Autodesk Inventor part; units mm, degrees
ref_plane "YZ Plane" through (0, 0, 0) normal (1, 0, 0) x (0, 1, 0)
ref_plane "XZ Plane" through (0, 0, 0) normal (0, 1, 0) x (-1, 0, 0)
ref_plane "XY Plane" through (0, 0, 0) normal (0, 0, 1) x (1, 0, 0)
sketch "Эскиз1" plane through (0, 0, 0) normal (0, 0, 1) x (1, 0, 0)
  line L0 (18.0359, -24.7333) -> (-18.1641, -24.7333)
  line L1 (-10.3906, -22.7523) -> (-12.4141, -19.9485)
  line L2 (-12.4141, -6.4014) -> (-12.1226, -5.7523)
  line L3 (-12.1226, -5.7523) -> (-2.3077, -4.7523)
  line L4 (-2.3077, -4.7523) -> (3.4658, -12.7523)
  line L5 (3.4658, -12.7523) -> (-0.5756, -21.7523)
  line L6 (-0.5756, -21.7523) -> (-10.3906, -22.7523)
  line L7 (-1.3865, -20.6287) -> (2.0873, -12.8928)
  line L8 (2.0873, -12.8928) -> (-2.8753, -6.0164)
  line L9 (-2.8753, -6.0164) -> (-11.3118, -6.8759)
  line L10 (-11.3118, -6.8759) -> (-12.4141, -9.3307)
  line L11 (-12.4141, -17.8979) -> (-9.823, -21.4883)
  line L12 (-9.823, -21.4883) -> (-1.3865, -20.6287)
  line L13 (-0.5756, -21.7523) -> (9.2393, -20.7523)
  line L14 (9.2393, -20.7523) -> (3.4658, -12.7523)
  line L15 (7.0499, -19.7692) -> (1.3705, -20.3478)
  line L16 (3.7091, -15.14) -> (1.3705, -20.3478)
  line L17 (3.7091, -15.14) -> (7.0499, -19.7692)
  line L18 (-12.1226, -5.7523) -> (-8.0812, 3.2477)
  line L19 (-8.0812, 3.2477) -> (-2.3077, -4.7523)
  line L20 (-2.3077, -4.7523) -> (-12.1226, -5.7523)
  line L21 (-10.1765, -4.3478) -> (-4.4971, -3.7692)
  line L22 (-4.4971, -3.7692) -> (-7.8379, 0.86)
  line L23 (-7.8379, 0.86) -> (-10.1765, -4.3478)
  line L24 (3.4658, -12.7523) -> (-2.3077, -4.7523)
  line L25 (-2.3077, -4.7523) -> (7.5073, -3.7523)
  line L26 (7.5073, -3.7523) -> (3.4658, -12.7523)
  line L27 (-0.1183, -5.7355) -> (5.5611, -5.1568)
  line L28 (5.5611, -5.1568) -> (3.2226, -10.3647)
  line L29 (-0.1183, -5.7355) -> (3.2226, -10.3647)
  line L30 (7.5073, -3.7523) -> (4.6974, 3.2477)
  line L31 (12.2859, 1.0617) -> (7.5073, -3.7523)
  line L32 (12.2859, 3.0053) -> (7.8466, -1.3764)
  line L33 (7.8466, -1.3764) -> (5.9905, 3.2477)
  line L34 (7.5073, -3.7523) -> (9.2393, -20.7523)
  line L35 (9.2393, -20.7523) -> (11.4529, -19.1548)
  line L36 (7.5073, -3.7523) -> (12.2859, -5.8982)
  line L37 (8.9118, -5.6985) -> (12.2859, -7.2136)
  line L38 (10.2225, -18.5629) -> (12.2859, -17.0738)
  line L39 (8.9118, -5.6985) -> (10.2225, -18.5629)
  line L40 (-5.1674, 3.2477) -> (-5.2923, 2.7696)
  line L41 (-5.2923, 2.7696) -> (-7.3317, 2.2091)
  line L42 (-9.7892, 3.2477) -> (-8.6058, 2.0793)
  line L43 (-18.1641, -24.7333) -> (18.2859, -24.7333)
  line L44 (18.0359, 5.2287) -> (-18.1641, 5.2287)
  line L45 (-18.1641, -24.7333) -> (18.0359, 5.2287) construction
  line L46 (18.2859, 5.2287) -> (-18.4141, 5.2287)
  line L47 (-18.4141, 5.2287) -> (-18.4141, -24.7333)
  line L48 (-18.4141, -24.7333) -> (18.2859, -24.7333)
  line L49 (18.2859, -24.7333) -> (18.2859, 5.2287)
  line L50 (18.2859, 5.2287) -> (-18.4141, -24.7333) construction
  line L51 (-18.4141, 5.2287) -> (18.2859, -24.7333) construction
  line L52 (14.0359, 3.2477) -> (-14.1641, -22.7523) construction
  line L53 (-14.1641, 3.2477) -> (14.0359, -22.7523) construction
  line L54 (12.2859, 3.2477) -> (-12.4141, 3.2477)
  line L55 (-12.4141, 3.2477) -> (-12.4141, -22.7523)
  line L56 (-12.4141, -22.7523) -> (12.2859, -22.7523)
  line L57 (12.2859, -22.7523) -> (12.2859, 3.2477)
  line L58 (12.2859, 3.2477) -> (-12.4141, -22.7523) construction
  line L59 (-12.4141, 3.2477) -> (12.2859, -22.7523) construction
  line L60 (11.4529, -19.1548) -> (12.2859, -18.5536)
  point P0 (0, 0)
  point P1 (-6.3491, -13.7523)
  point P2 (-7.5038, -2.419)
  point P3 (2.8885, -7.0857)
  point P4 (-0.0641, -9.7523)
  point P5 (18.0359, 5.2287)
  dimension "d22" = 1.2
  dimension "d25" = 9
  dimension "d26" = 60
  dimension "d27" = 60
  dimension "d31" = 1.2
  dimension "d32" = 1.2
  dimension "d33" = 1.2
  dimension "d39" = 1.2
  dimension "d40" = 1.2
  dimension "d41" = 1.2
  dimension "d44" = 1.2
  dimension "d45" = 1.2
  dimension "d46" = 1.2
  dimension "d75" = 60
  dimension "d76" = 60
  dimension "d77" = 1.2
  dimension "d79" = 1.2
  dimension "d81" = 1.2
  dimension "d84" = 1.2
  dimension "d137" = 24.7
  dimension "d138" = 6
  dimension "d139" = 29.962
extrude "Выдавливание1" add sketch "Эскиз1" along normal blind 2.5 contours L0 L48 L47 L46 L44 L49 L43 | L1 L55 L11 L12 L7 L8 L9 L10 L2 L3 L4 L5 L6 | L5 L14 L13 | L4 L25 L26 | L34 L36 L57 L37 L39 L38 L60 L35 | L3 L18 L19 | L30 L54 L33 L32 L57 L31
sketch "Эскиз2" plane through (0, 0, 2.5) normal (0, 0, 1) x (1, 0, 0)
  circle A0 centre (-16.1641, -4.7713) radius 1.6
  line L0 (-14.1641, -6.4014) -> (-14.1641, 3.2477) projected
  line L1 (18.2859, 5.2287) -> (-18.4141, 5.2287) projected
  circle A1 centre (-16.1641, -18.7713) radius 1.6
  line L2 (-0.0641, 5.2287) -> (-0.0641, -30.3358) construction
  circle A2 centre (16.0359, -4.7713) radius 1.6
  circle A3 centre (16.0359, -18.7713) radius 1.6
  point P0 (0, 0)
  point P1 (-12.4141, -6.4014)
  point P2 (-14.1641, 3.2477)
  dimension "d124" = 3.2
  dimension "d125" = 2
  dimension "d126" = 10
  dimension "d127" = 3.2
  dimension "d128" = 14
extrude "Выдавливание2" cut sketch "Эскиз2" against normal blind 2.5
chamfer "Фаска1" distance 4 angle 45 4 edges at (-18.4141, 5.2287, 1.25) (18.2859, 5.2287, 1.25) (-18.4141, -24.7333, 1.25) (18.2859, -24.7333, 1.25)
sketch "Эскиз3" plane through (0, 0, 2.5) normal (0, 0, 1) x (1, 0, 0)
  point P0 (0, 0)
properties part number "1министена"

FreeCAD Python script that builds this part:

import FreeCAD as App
import Part
import Sketcher
from FreeCAD import Vector
Q = App.Units.Quantity


def edges_at(feature, points):
    """Names of the edges that pass closest to the given points."""
    edges = feature.Shape.Edges
    near = lambda p: min(range(len(edges)), key=lambda i: edges[i].distToShape(Part.Vertex(*p))[0])
    return sorted({f"Edge{near(p) + 1}" for p in points})

doc = App.newDocument("Part")
body = doc.addObject("PartDesign::Body", "Body")

# Sketch on XY plane
sketch1 = doc.addObject("Sketcher::SketchObject", "Sketch")
body.addObject(sketch1)
sketch1.AttachmentSupport = (doc.XY_Plane, [""])
sketch1.MapMode = "FlatFace"
sketch1.addGeometry(Part.LineSegment(Vector(18.2859, -24.7333, 0), Vector(18.2859, 5.2287, 0)), False)
sketch1.addGeometry(Part.LineSegment(Vector(18.2859, 5.2287, 0), Vector(-18.4141, 5.2287, 0)), False)
sketch1.addGeometry(Part.LineSegment(Vector(-18.4141, 5.2287, 0), Vector(-18.4141, -24.7333, 0)), False)
sketch1.addGeometry(Part.LineSegment(Vector(-18.4141, -24.7333, 0), Vector(18.2859, -24.7333, 0)), False)
sketch1.addGeometry(Part.LineSegment(Vector(-10.3906, -22.7523, 0), Vector(-12.4141, -22.7523, 0)), False)
sketch1.addGeometry(Part.LineSegment(Vector(-12.4141, -22.7523, 0), Vector(-12.4141, -19.9485, 0)), False)
sketch1.addGeometry(Part.LineSegment(Vector(-12.4141, -19.9485, 0), Vector(-10.3906, -22.7523, 0)), False)
sketch1.addGeometry(Part.LineSegment(Vector(-10.3906, -22.7523, 0), Vector(-0.5756, -21.7523, 0)), False)
sketch1.addGeometry(Part.LineSegment(Vector(-0.5756, -21.7523, 0), Vector(9.2393, -20.7523, 0)), False)
sketch1.addGeometry(Part.LineSegment(Vector(9.2393, -20.7523, 0), Vector(11.4529, -19.1548, 0)), False)
sketch1.addGeometry(Part.LineSegment(Vector(11.4529, -19.1548, 0), Vector(12.2859, -18.5536, 0)), False)
sketch1.addGeometry(Part.LineSegment(Vector(12.2859, -18.5536, 0), Vector(12.2859, -22.7523, 0)), False)
sketch1.addGeometry(Part.LineSegment(Vector(12.2859, -22.7523, 0), Vector(-10.3906, -22.7523, 0)), False)
sketch1.addGeometry(Part.LineSegment(Vector(9.2393, -20.7523, 0), Vector(3.4658, -12.7523, 0)), False)
sketch1.addGeometry(Part.LineSegment(Vector(3.4658, -12.7523, 0), Vector(7.5073, -3.7523, 0)), False)
sketch1.addGeometry(Part.LineSegment(Vector(7.5073, -3.7523, 0), Vector(9.2393, -20.7523, 0)), False)
sketch1.addGeometry(Part.LineSegment(Vector(7.5073, -3.7523, 0), Vector(-2.3077, -4.7523, 0)), False)
sketch1.addGeometry(Part.LineSegment(Vector(-2.3077, -4.7523, 0), Vector(-8.0812, 3.2477, 0)), False)
sketch1.addGeometry(Part.LineSegment(Vector(-8.0812, 3.2477, 0), Vector(4.6974, 3.2477, 0)), False)
sketch1.addGeometry(Part.LineSegment(Vector(4.6974, 3.2477, 0), Vector(7.5073, -3.7523, 0)), False)
sketch1.addGeometry(Part.LineSegment(Vector(7.5073, -3.7523, 0), Vector(12.2859, 1.0617, 0)), False)
sketch1.addGeometry(Part.LineSegment(Vector(12.2859, 1.0617, 0), Vector(12.2859, -5.8982, 0)), False)
sketch1.addGeometry(Part.LineSegment(Vector(12.2859, -5.8982, 0), Vector(7.5073, -3.7523, 0)), False)
sketch1.addGeometry(Part.LineSegment(Vector(-8.0812, 3.2477, 0), Vector(-12.1226, -5.7523, 0)), False)
sketch1.addGeometry(Part.LineSegment(Vector(-12.1226, -5.7523, 0), Vector(-12.4141, -6.4014, 0)), False)
sketch1.addGeometry(Part.LineSegment(Vector(-12.4141, -6.4014, 0), Vector(-12.4141, 3.2477, 0)), False)
sketch1.addGeometry(Part.LineSegment(Vector(-12.4141, 3.2477, 0), Vector(-8.0812, 3.2477, 0)), False)
sketch1.addGeometry(Part.LineSegment(Vector(12.2859, -7.2136, 0), Vector(12.2859, -17.0738, 0)), False)
sketch1.addGeometry(Part.LineSegment(Vector(12.2859, -17.0738, 0), Vector(10.2225, -18.5629, 0)), False)
sketch1.addGeometry(Part.LineSegment(Vector(10.2225, -18.5629, 0), Vector(8.9118, -5.6985, 0)), False)
sketch1.addGeometry(Part.LineSegment(Vector(8.9118, -5.6985, 0), Vector(12.2859, -7.2136, 0)), False)
sketch1.addGeometry(Part.LineSegment(Vector(12.2859, 3.2477, 0), Vector(12.2859, 3.0053, 0)), False)
sketch1.addGeometry(Part.LineSegment(Vector(12.2859, 3.0053, 0), Vector(7.8466, -1.3764, 0)), False)
sketch1.addGeometry(Part.LineSegment(Vector(7.8466, -1.3764, 0), Vector(5.9905, 3.2477, 0)), False)
sketch1.addGeometry(Part.LineSegment(Vector(5.9905, 3.2477, 0), Vector(12.2859, 3.2477, 0)), False)
sketch1.addGeometry(Part.LineSegment(Vector(-12.4141, -17.8979, 0), Vector(-12.4141, -9.3307, 0)), False)
sketch1.addGeometry(Part.LineSegment(Vector(-12.4141, -9.3307, 0), Vector(-11.3118, -6.8759, 0)), False)
sketch1.addGeometry(Part.LineSegment(Vector(-11.3118, -6.8759, 0), Vector(-2.8753, -6.0164, 0)), False)
sketch1.addGeometry(Part.LineSegment(Vector(-2.8753, -6.0164, 0), Vector(2.0873, -12.8928, 0)), False)
sketch1.addGeometry(Part.LineSegment(Vector(2.0873, -12.8928, 0), Vector(-1.3865, -20.6287, 0)), False)
sketch1.addGeometry(Part.LineSegment(Vector(-1.3865, -20.6287, 0), Vector(-9.823, -21.4883, 0)), False)
sketch1.addGeometry(Part.LineSegment(Vector(-9.823, -21.4883, 0), Vector(-12.4141, -17.8979, 0)), False)
sketch1.addGeometry(Part.LineSegment(Vector(7.0499, -19.7692, 0), Vector(1.3705, -20.3478, 0)), False)
sketch1.addGeometry(Part.LineSegment(Vector(1.3705, -20.3478, 0), Vector(3.7091, -15.14, 0)), False)
sketch1.addGeometry(Part.LineSegment(Vector(3.7091, -15.14, 0), Vector(7.0499, -19.7692, 0)), False)
sketch1.addGeometry(Part.LineSegment(Vector(-10.1765, -4.3478, 0), Vector(-7.8379, 0.86, 0)), False)
sketch1.addGeometry(Part.LineSegment(Vector(-7.8379, 0.86, 0), Vector(-4.4971, -3.7692, 0)), False)
sketch1.addGeometry(Part.LineSegment(Vector(-4.4971, -3.7692, 0), Vector(-10.1765, -4.3478, 0)), False)
sketch1.addGeometry(Part.LineSegment(Vector(-0.1183, -5.7355, 0), Vector(5.5611, -5.1568, 0)), False)
sketch1.addGeometry(Part.LineSegment(Vector(5.5611, -5.1568, 0), Vector(3.2226, -10.3647, 0)), False)
sketch1.addGeometry(Part.LineSegment(Vector(3.2226, -10.3647, 0), Vector(-0.1183, -5.7355, 0)), False)
sketch1.addConstraint(Sketcher.Constraint("Coincident", 0, 2, 1, 1))
sketch1.addConstraint(Sketcher.Constraint("Coincident", 1, 2, 2, 1))
sketch1.addConstraint(Sketcher.Constraint("Coincident", 2, 2, 3, 1))
sketch1.addConstraint(Sketcher.Constraint("Coincident", 3, 2, 0, 1))
sketch1.addConstraint(Sketcher.Constraint("Coincident", 4, 2, 5, 1))
sketch1.addConstraint(Sketcher.Constraint("Coincident", 5, 2, 6, 1))
sketch1.addConstraint(Sketcher.Constraint("Coincident", 6, 2, 4, 1))
sketch1.addConstraint(Sketcher.Constraint("Coincident", 7, 2, 8, 1))
sketch1.addConstraint(Sketcher.Constraint("Coincident", 8, 2, 9, 1))
sketch1.addConstraint(Sketcher.Constraint("Coincident", 9, 2, 10, 1))
sketch1.addConstraint(Sketcher.Constraint("Coincident", 10, 2, 11, 1))
sketch1.addConstraint(Sketcher.Constraint("Coincident", 11, 2, 12, 1))
sketch1.addConstraint(Sketcher.Constraint("Coincident", 12, 2, 7, 1))
sketch1.addConstraint(Sketcher.Constraint("Coincident", 13, 2, 14, 1))
sketch1.addConstraint(Sketcher.Constraint("Coincident", 14, 2, 15, 1))
sketch1.addConstraint(Sketcher.Constraint("Coincident", 15, 2, 13, 1))
sketch1.addConstraint(Sketcher.Constraint("Coincident", 16, 2, 17, 1))
sketch1.addConstraint(Sketcher.Constraint("Coincident", 17, 2, 18, 1))
sketch1.addConstraint(Sketcher.Constraint("Coincident", 18, 2, 19, 1))
sketch1.addConstraint(Sketcher.Constraint("Coincident", 19, 2, 16, 1))
sketch1.addConstraint(Sketcher.Constraint("Coincident", 20, 2, 21, 1))
sketch1.addConstraint(Sketcher.Constraint("Coincident", 21, 2, 22, 1))
sketch1.addConstraint(Sketcher.Constraint("Coincident", 22, 2, 20, 1))
sketch1.addConstraint(Sketcher.Constraint("Coincident", 23, 2, 24, 1))
sketch1.addConstraint(Sketcher.Constraint("Coincident", 24, 2, 25, 1))
sketch1.addConstraint(Sketcher.Constraint("Coincident", 25, 2, 26, 1))
sketch1.addConstraint(Sketcher.Constraint("Coincident", 26, 2, 23, 1))
sketch1.addConstraint(Sketcher.Constraint("Coincident", 27, 2, 28, 1))
sketch1.addConstraint(Sketcher.Constraint("Coincident", 28, 2, 29, 1))
sketch1.addConstraint(Sketcher.Constraint("Coincident", 29, 2, 30, 1))
sketch1.addConstraint(Sketcher.Constraint("Coincident", 30, 2, 27, 1))
sketch1.addConstraint(Sketcher.Constraint("Coincident", 31, 2, 32, 1))
sketch1.addConstraint(Sketcher.Constraint("Coincident", 32, 2, 33, 1))
sketch1.addConstraint(Sketcher.Constraint("Coincident", 33, 2, 34, 1))
sketch1.addConstraint(Sketcher.Constraint("Coincident", 34, 2, 31, 1))
sketch1.addConstraint(Sketcher.Constraint("Coincident", 35, 2, 36, 1))
sketch1.addConstraint(Sketcher.Constraint("Coincident", 36, 2, 37, 1))
sketch1.addConstraint(Sketcher.Constraint("Coincident", 37, 2, 38, 1))
sketch1.addConstraint(Sketcher.Constraint("Coincident", 38, 2, 39, 1))
sketch1.addConstraint(Sketcher.Constraint("Coincident", 39, 2, 40, 1))
sketch1.addConstraint(Sketcher.Constraint("Coincident", 40, 2, 41, 1))
sketch1.addConstraint(Sketcher.Constraint("Coincident", 41, 2, 35, 1))
sketch1.addConstraint(Sketcher.Constraint("Coincident", 42, 2, 43, 1))
sketch1.addConstraint(Sketcher.Constraint("Coincident", 43, 2, 44, 1))
sketch1.addConstraint(Sketcher.Constraint("Coincident", 44, 2, 42, 1))
sketch1.addConstraint(Sketcher.Constraint("Coincident", 45, 2, 46, 1))
sketch1.addConstraint(Sketcher.Constraint("Coincident", 46, 2, 47, 1))
sketch1.addConstraint(Sketcher.Constraint("Coincident", 47, 2, 45, 1))
sketch1.addConstraint(Sketcher.Constraint("Coincident", 48, 2, 49, 1))
sketch1.addConstraint(Sketcher.Constraint("Coincident", 49, 2, 50, 1))
sketch1.addConstraint(Sketcher.Constraint("Coincident", 50, 2, 48, 1))
sketch1.addConstraint(Sketcher.Constraint("Vertical", 0))
sketch1.addConstraint(Sketcher.Constraint("Horizontal", 1))
sketch1.addConstraint(Sketcher.Constraint("Vertical", 2))
sketch1.addConstraint(Sketcher.Constraint("Horizontal", 3))
sketch1.addConstraint(Sketcher.Constraint("Horizontal", 4))
sketch1.addConstraint(Sketcher.Constraint("Vertical", 5))
sketch1.addConstraint(Sketcher.Constraint("Vertical", 11))
sketch1.addConstraint(Sketcher.Constraint("Horizontal", 12))
sketch1.addConstraint(Sketcher.Constraint("Horizontal", 18))
sketch1.addConstraint(Sketcher.Constraint("Vertical", 21))
sketch1.addConstraint(Sketcher.Constraint("Vertical", 25))
sketch1.addConstraint(Sketcher.Constraint("Horizontal", 26))
sketch1.addConstraint(Sketcher.Constraint("Vertical", 27))
sketch1.addConstraint(Sketcher.Constraint("Vertical", 31))
sketch1.addConstraint(Sketcher.Constraint("Horizontal", 34))
sketch1.addConstraint(Sketcher.Constraint("Vertical", 35))
sketch1.addConstraint(Sketcher.Constraint("Coincident", 12, 2, 6, 2))
sketch1.addConstraint(Sketcher.Constraint("Coincident", 15, 2, 8, 2))
sketch1.addConstraint(Sketcher.Constraint("Coincident", 19, 2, 14, 2))
sketch1.addConstraint(Sketcher.Constraint("Coincident", 22, 2, 14, 2))
sketch1.addConstraint(Sketcher.Constraint("Coincident", 26, 2, 17, 2))
sketch1.addConstraint(Sketcher.Constraint("Parallel", 7, 8))
sketch1.addConstraint(Sketcher.Constraint("Perpendicular", 6, 9))
sketch1.addConstraint(Sketcher.Constraint("Parallel", 9, 10))
sketch1.addConstraint(Sketcher.Constraint("Perpendicular", 10, 13))
sketch1.addConstraint(Sketcher.Constraint("Perpendicular", 8, 15))
sketch1.addConstraint(Sketcher.Constraint("Perpendicular", 15, 16))
sketch1.addConstraint(Sketcher.Constraint("Parallel", 13, 17))
sketch1.addConstraint(Sketcher.Constraint("Perpendicular", 14, 22))
sketch1.addConstraint(Sketcher.Constraint("Perpendicular", 22, 23))
sketch1.addConstraint(Sketcher.Constraint("Parallel", 23, 24))
sketch1.addConstraint(Sketcher.Constraint("Perpendicular", 17, 28))
sketch1.addConstraint(Sketcher.Constraint("Perpendicular", 16, 29))
sketch1.addConstraint(Sketcher.Constraint("Perpendicular", 24, 30))
sketch1.addConstraint(Sketcher.Constraint("Parallel", 19, 33))
sketch1.addConstraint(Sketcher.Constraint("Perpendicular", 30, 36))
sketch1.addConstraint(Sketcher.Constraint("Perpendicular", 29, 37))
sketch1.addConstraint(Sketcher.Constraint("Perpendicular", 28, 38))
sketch1.addConstraint(Sketcher.Constraint("Parallel", 36, 39))
sketch1.addConstraint(Sketcher.Constraint("Parallel", 37, 40))
sketch1.addConstraint(Sketcher.Constraint("Parallel", 38, 41))
sketch1.addConstraint(Sketcher.Constraint("Parallel", 40, 42))
sketch1.addConstraint(Sketcher.Constraint("Parallel", 39, 43))
sketch1.addConstraint(Sketcher.Constraint("Parallel", 41, 44))
sketch1.addConstraint(Sketcher.Constraint("Parallel", 43, 45))
sketch1.addConstraint(Sketcher.Constraint("Parallel", 44, 46))
sketch1.addConstraint(Sketcher.Constraint("Parallel", 42, 47))
sketch1.addConstraint(Sketcher.Constraint("Parallel", 47, 48))
sketch1.addConstraint(Sketcher.Constraint("Parallel", 45, 49))
sketch1.addConstraint(Sketcher.Constraint("Parallel", 46, 50))
sketch1.addConstraint(Sketcher.Constraint("Horizontal", 26, 2, 33, 2))
sketch1.addConstraint(Sketcher.Constraint("Vertical", 11, 2, 20, 2))
sketch1.addConstraint(Sketcher.Constraint("Vertical", 5, 2, 24, 2))
sketch1.addConstraint(Sketcher.Constraint("Vertical", 21, 2, 27, 2))
sketch1.addConstraint(Sketcher.Constraint("Vertical", 30, 2, 31, 2))
sketch1.addConstraint(Sketcher.Constraint("Vertical", 25, 2, 35, 2))
sketch1.addConstraint(Sketcher.Constraint("Equal", 7, 8))
sketch1.addConstraint(Sketcher.Constraint("Equal", 8, 13))
sketch1.addConstraint(Sketcher.Constraint("Equal", 13, 14))
sketch1.addConstraint(Sketcher.Constraint("Equal", 14, 16))
sketch1.addConstraint(Sketcher.Constraint("Equal", 16, 17))
sketch1.addConstraint(Sketcher.Constraint("Equal", 17, 23))
sketch1.addConstraint(Sketcher.Constraint("Equal", 37, 38))
sketch1.addConstraint(Sketcher.Constraint("Equal", 38, 39))
sketch1.addConstraint(Sketcher.Constraint("Equal", 39, 40))
sketch1.addConstraint(Sketcher.Constraint("Equal", 42, 43))
sketch1.addConstraint(Sketcher.Constraint("Equal", 44, 45))
sketch1.addConstraint(Sketcher.Constraint("Equal", 47, 48))
sketch1.addConstraint(Sketcher.Constraint("DistanceX", 2, 2, 4, 2, 6.0))
sketch1.addConstraint(Sketcher.Constraint("DistanceX", 10, 2, 3, 2, 6.0))
sketch1.addConstraint(Sketcher.Constraint("DistanceY", 7, 2, 13, 2, 9.0))
sketch1.addConstraint(Sketcher.Constraint("DistanceY", 0, 1, 0, 2, 29.962))
sketch1.addConstraint(Sketcher.Constraint("DistanceX", 1, 2, 1, 1, 36.7))
sketch1.addConstraint(Sketcher.Constraint("DistanceY", 6, 2, 7, 2, 1.0))
sketch1.addConstraint(Sketcher.Constraint("DistanceY", 21, 2, 21, 1, 6.96))
sketch1.addConstraint(Sketcher.Constraint("Angle", 33, Q("111.8704 deg")))
sketch1.addConstraint(Sketcher.Constraint("Distance", 38, 8.48))
sketch1.addConstraint(Sketcher.Constraint("DistanceX", 26, 1, 26, 2, 4.333))
sketch1.addConstraint(Sketcher.Constraint("DistanceY", 43, 2, -1, 1, 15.14))
sketch1.addConstraint(Sketcher.Constraint("DistanceX", -1, 1, 44, 2, 7.05))
sketch1.addConstraint(Sketcher.Constraint("DistanceY", -1, 1, 45, 2, 0.86))
sketch1.addConstraint(Sketcher.Constraint("DistanceY", 24, 2, 1, 2, 11.63))
sketch1.addConstraint(Sketcher.Constraint("DistanceY", 28, 2, 38, 2, 5.67))
sketch1.addConstraint(Sketcher.Constraint("Distance", 29, 12.931))
sketch1.addConstraint(Sketcher.Constraint("Distance", 36, 2.691))
sketch1.addConstraint(Sketcher.Constraint("DistanceX", 34, 1, 34, 2, 6.2954))
sketch1.addConstraint(Sketcher.Constraint("DistanceY", 27, 2, 27, 1, 9.8602))
sketch1.addConstraint(Sketcher.Constraint("DistanceY", 31, 2, 31, 1, 0.2424))
sketch1.addConstraint(Sketcher.Constraint("DistanceX", -1, 1, 0, 2, 18.286))
sketch1.addConstraint(Sketcher.Constraint("DistanceX", -1, 1, 9, 2, 11.453))
sketch1.addConstraint(Sketcher.Constraint("DistanceY", 28, 2, -1, 1, 18.563))
sketch1.addConstraint(Sketcher.Constraint("DistanceX", -1, 1, 43, 2, 3.709))
sketch1.addConstraint(Sketcher.Constraint("DistanceX", 45, 2, -1, 1, 7.838))
sketch1.addConstraint(Sketcher.Constraint("DistanceX", -1, 1, 48, 2, 5.561))
sketch1.addConstraint(Sketcher.Constraint("DistanceY", 9, 2, 27, 2, 2.081))
sketch1.addConstraint(Sketcher.Constraint("DistanceY", 14, 2, 32, 2, 2.376))
sketch1.addConstraint(Sketcher.Constraint("DistanceY", 38, 2, 49, 2, 2.528))
pad1 = doc.addObject("PartDesign::Pad", "Pad")
body.addObject(pad1)
pad1.Profile = sketch1
pad1.Length = 2.5

# Sketch on XY plane
sketch2 = doc.addObject("Sketcher::SketchObject", "Sketch001")
body.addObject(sketch2)
sketch2.AttachmentSupport = (doc.XY_Plane, [""])
sketch2.MapMode = "FlatFace"
sketch2.AttachmentOffset = App.Placement(Vector(0, 0, 2.5), App.Rotation())
sketch2.addGeometry(Part.Circle(Vector(-16.1641, -4.7713, 0), Vector(0, 0, 1), 1.6), False)
sketch2.addGeometry(Part.Circle(Vector(-16.1641, -18.7713, 0), Vector(0, 0, 1), 1.6), False)
sketch2.addGeometry(Part.Circle(Vector(16.0359, -4.7713, 0), Vector(0, 0, 1), 1.6), False)
sketch2.addGeometry(Part.Circle(Vector(16.0359, -18.7713, 0), Vector(0, 0, 1), 1.6), False)
sketch2.addConstraint(Sketcher.Constraint("Equal", 0, 1))
sketch2.addConstraint(Sketcher.Constraint("Equal", 1, 2))
sketch2.addConstraint(Sketcher.Constraint("Equal", 2, 3))
sketch2.addConstraint(Sketcher.Constraint("Horizontal", 0, 3, 2, 3))
sketch2.addConstraint(Sketcher.Constraint("Horizontal", 1, 3, 3, 3))
sketch2.addConstraint(Sketcher.Constraint("Vertical", 0, 3, 1, 3))
sketch2.addConstraint(Sketcher.Constraint("Vertical", 2, 3, 3, 3))
sketch2.addConstraint(Sketcher.Constraint("Diameter", 0, 3.2))
sketch2.addConstraint(Sketcher.Constraint("DistanceY", 1, 3, 0, 3, 14.0))
sketch2.addConstraint(Sketcher.Constraint("DistanceX", 0, 3, 2, 3, 32.2))
sketch2.addConstraint(Sketcher.Constraint("DistanceX", 0, 3, -1, 1, 16.164))
sketch2.addConstraint(Sketcher.Constraint("DistanceY", 0, 3, -1, 1, 4.7713))
pocket1 = doc.addObject("PartDesign::Pocket", "Pocket")
body.addObject(pocket1)
pocket1.Profile = sketch2
pocket1.Length = 2.5
doc.recompute()

chamfer = doc.addObject("PartDesign::Chamfer", "Chamfer")
body.addObject(chamfer)
chamfer.Base = (pocket1, edges_at(pocket1, [
    (-18.414, 5.229, 1.25),
    (18.286, 5.229, 1.25),
    (-18.414, -24.733, 1.25),
    (18.286, -24.733, 1.25),
]))
chamfer.Size = 4

doc.recompute()
